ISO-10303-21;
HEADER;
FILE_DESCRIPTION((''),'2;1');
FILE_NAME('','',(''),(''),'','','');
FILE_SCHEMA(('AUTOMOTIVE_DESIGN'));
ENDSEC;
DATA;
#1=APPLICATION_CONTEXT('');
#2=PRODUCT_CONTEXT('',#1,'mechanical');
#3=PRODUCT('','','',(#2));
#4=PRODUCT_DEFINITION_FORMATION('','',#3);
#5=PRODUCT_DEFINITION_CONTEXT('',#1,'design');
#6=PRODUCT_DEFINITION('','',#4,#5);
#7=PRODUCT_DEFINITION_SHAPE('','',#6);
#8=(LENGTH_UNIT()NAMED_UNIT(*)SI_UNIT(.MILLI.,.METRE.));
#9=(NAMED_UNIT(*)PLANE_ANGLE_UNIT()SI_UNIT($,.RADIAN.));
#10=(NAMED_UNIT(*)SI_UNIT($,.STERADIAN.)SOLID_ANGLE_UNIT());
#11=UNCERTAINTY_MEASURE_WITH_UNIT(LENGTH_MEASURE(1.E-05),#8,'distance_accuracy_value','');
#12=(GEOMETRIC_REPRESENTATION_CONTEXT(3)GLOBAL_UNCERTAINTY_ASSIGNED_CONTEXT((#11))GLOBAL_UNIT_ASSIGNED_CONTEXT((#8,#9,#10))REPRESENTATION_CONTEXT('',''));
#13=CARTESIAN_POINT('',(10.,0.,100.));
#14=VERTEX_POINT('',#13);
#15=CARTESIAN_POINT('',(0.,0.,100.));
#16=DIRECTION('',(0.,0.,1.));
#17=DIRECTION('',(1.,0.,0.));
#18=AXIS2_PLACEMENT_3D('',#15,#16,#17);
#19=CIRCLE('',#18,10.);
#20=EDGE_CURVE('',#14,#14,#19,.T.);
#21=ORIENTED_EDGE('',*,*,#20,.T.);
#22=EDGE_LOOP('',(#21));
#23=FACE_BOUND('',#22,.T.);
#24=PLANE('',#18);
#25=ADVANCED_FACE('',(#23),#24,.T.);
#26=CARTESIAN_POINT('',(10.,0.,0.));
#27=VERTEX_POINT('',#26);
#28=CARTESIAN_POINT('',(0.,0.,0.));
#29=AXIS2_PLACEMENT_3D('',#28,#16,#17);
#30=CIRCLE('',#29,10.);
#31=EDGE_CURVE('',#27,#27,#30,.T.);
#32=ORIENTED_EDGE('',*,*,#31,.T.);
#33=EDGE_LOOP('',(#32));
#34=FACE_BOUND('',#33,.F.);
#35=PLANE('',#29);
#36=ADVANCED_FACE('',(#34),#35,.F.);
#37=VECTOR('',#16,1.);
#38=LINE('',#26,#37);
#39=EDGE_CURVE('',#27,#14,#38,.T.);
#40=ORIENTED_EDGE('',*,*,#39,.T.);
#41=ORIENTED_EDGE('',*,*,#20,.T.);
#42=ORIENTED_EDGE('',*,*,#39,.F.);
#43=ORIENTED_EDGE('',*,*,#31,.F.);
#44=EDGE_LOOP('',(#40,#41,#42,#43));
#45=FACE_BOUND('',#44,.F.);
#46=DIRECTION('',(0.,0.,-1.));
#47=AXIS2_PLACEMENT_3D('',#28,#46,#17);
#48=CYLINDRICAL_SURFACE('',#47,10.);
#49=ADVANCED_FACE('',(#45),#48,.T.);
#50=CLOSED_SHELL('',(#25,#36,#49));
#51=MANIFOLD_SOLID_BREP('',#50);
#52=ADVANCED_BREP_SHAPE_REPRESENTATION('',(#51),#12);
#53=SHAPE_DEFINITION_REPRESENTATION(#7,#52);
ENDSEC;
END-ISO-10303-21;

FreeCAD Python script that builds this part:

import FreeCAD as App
import Part
import Sketcher

V = App.Vector
Q = App.Units.Quantity

doc = App.newDocument("Part")
body = doc.addObject("PartDesign::Body", "Body")

# Sketch on XY plane
sketch1 = body.newObject("Sketcher::SketchObject", "Sketch")
sketch1.AttachmentSupport = (doc.getObject("XY_Plane"), [""])
sketch1.MapMode = "FlatFace"
sketch1.addGeometry(Part.Circle(V(0, 0, 0), V(0, 0, 1), 10), False)
sketch1.addConstraint([
    Sketcher.Constraint("Coincident", 0, 3, -1, 1),
    Sketcher.Constraint("Diameter", 0, Q("20 mm")),
])
pad1 = body.newObject("PartDesign::Pad", "Pad")
pad1.Profile = sketch1
pad1.Length = 100

doc.recompute()
